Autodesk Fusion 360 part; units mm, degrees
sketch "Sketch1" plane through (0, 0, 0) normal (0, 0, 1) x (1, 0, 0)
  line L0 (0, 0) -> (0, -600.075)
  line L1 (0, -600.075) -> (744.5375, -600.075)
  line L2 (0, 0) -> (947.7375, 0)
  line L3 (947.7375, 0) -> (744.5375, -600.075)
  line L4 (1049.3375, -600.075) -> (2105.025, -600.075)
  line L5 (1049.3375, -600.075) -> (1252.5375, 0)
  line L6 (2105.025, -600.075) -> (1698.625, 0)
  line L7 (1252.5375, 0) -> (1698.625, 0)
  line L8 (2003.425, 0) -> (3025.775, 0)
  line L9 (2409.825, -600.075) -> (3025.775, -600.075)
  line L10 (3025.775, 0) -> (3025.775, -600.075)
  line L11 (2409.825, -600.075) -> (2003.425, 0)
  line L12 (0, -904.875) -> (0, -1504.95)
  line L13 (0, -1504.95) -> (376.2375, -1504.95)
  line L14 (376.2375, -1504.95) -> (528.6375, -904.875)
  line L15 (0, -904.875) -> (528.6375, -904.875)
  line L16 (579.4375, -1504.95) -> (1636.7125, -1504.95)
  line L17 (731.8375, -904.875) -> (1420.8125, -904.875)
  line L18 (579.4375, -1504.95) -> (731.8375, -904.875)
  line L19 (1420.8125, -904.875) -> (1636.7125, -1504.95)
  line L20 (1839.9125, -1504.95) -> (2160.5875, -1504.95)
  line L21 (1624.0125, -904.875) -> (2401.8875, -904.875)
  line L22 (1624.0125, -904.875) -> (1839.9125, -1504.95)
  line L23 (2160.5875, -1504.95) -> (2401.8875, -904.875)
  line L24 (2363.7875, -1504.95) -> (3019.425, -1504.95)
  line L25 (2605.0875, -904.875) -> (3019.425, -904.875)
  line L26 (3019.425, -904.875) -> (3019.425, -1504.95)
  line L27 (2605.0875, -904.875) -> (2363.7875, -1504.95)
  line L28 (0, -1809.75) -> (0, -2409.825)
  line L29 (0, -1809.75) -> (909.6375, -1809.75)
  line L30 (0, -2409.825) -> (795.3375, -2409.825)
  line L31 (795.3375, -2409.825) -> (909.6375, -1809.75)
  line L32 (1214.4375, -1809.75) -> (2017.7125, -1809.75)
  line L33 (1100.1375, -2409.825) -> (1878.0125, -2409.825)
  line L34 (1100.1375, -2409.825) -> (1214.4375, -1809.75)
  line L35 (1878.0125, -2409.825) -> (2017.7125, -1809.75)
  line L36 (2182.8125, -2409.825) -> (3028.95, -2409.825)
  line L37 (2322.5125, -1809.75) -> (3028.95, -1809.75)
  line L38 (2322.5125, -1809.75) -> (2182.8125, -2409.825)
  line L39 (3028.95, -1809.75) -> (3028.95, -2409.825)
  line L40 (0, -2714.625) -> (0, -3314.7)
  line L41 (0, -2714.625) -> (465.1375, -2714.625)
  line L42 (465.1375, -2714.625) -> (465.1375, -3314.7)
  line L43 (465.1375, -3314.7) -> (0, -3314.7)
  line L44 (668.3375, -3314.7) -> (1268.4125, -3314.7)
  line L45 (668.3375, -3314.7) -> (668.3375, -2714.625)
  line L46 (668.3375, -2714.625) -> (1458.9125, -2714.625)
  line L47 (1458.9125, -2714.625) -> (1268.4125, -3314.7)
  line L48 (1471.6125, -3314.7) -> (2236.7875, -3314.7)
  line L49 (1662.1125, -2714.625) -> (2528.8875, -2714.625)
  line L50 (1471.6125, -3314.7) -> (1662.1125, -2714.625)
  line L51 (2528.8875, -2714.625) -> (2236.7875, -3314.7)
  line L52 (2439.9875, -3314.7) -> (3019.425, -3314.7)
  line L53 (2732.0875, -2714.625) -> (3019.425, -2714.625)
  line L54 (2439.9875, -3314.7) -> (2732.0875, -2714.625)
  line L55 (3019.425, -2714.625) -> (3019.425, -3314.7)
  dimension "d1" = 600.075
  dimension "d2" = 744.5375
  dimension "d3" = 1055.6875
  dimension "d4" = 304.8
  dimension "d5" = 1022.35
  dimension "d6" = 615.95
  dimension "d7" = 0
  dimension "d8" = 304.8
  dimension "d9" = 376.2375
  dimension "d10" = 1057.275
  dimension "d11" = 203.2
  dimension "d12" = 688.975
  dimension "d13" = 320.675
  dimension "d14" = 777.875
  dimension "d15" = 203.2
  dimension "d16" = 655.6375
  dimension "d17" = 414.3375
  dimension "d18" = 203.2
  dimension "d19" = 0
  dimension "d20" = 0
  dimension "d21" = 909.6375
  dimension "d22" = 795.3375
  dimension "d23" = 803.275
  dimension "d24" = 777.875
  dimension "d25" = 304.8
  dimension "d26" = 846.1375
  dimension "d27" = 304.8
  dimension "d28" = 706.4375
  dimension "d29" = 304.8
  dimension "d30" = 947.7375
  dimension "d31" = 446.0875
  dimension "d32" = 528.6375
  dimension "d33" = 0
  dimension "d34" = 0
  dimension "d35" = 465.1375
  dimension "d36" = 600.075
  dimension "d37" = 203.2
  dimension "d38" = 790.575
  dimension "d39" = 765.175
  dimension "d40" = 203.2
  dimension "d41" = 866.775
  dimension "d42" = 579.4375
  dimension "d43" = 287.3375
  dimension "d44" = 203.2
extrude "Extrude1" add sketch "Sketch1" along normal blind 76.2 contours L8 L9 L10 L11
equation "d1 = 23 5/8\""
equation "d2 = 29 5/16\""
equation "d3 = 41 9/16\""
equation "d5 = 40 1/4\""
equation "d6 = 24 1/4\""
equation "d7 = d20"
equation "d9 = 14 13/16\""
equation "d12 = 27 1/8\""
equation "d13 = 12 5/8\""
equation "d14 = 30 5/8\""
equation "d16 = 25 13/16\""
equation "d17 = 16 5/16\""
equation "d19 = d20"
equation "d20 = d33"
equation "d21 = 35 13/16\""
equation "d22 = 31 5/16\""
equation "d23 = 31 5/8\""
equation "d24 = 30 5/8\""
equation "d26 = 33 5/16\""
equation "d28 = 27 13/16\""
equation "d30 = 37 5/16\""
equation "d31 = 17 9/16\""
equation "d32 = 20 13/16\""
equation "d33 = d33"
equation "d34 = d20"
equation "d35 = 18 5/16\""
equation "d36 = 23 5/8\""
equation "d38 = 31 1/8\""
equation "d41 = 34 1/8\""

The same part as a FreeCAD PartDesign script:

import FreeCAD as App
import Part
import Sketcher

V = App.Vector
Q = App.Units.Quantity


def add_polygon(sketch, points):
    """Adds a closed chain of lines whose ends are joined by coincident constraints."""
    first, n = sketch.GeometryCount, len(points)
    for a, b in zip(points, points[1:] + points[:1]):
        sketch.addGeometry(Part.LineSegment(App.Vector(*a, 0), App.Vector(*b, 0)), False)
    for i in range(n):
        sketch.addConstraint(Sketcher.Constraint("Coincident", first + i, 2, first + (i + 1) % n, 1))

doc = App.newDocument("Part")
params = doc.addObject("Spreadsheet::Sheet", "Params")
for row, (alias, value) in enumerate([
    ("sketch1_width", "40.25 in"),
    ("sketch1_width2", "24.25 in"),
    ("sketch1_height", "23.625 in"),
    ("pad1_length", "3 in"),
], start=1):
    params.set(f"A{row}", alias)
    params.set(f"B{row}", "=" + value)
    params.setAlias(f"B{row}", alias)

body = doc.addObject("PartDesign::Body", "Body")

sketch1 = body.newObject("Sketcher::SketchObject", "Sketch")
sketch1.AttachmentSupport = (doc.getObject("XY_Plane"), [""])
sketch1.MapMode = "FlatFace"
add_polygon(sketch1, [(3026, 0), (2003, 0), (2410, -600), (3026, -600)])
sketch1.addConstraint([
    Sketcher.Constraint("Horizontal", 0),
    Sketcher.Constraint("Horizontal", 2),
    Sketcher.Constraint("Vertical", 3),
    Sketcher.Constraint("PointOnObject", 0, 2, -1),
    Sketcher.Constraint("DistanceX", 0, 2, 0, 1, Q("40.25 in")),
    Sketcher.Constraint("DistanceX", 2, 1, 2, 2, Q("24.25 in")),
    Sketcher.Constraint("DistanceY", 3, 1, 3, 2, Q("23.625 in")),
    Sketcher.Constraint("DistanceX", -1, 1, 0, 2, Q("78.875 in")),
])
sketch1.setExpression("Constraints[8]", "Params.sketch1_width")
sketch1.setExpression("Constraints[9]", "Params.sketch1_width2")
sketch1.setExpression("Constraints[10]", "Params.sketch1_height")
pad1 = body.newObject("PartDesign::Pad", "Pad")
pad1.Profile = sketch1
pad1.setExpression("Length", "Params.pad1_length")

doc.recompute()
